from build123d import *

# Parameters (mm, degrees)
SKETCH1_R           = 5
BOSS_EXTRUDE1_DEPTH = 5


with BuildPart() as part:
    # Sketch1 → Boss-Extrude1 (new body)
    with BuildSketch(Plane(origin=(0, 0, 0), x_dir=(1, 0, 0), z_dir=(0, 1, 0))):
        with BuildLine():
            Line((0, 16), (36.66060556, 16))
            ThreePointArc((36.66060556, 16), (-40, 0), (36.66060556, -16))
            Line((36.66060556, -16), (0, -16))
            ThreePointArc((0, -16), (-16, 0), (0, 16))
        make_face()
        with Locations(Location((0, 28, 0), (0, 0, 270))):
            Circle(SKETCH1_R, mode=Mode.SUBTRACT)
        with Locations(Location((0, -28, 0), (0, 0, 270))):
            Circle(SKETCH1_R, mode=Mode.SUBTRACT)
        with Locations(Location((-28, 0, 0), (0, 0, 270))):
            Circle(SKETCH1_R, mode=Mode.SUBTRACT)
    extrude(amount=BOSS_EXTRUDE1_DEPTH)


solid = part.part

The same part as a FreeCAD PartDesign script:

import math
import FreeCAD as App
import Part
import Sketcher
from FreeCAD import Vector

doc = App.newDocument("Part")
body = doc.addObject("PartDesign::Body", "Body")

# Sketch on XZ plane
sketch1 = body.newObject("Sketcher::SketchObject", "Sketch")
sketch1.AttachmentSupport = (doc.getObject("XZ_Plane"), [""])
sketch1.MapMode = "FlatFace"
sketch1.addGeometry([
    Part.LineSegment(Vector(0, -16, 0), Vector(37, -16, 0)),  # 0
    Part.ArcOfCircle(Part.Circle(Vector(0, 0, 0), Vector(0, 0, 1), 40), math.radians(24), math.radians(336)),  # 1
    Part.LineSegment(Vector(37, 16, 0), Vector(0, 16, 0)),  # 2
    Part.ArcOfCircle(Part.Circle(Vector(0, 0, 0), Vector(0, 0, 1), 16), math.radians(90), math.radians(270)),  # 3
    Part.Circle(Vector(0, 28, 0), Vector(0, 0, 1), 5),  # 4
    Part.Circle(Vector(-28, 0, 0), Vector(0, 0, 1), 5),  # 5
    Part.Circle(Vector(0, -28, 0), Vector(0, 0, 1), 5),  # 6
], False)
sketch1.addConstraint([
    Sketcher.Constraint("Coincident", 0, 2, 1, 2),
    Sketcher.Constraint("Coincident", 1, 1, 2, 1),
    Sketcher.Constraint("Tangent", 2, 2, 3, 1),
    Sketcher.Constraint("Tangent", 3, 2, 0, 1),
    Sketcher.Constraint("Horizontal", 0),
    Sketcher.Constraint("Horizontal", 2),
    Sketcher.Constraint("Coincident", 1, 3, -1, 1),
    Sketcher.Constraint("Coincident", 3, 3, -1, 1),
    Sketcher.Constraint("Equal", 4, 5),
    Sketcher.Constraint("Equal", 5, 6),
    Sketcher.Constraint("Symmetric", 4, 3, 6, 3, -1, 1),
    Sketcher.Constraint("PointOnObject", 4, 3, -2),
    Sketcher.Constraint("PointOnObject", 5, 3, -1),
    Sketcher.Constraint("Diameter", 4, 10.0),
    Sketcher.Constraint("Radius", 1, 40.0),
    Sketcher.Constraint("Radius", 3, 16.0),
    Sketcher.Constraint("DistanceY", -1, 1, 4, 3, 28.0),
    Sketcher.Constraint("DistanceX", 5, 3, -1, 1, 28.0),
])
pad1 = body.newObject("PartDesign::Pad", "Pad")
pad1.Profile = sketch1
pad1.Length = 5
pad1.Reversed = True

doc.recompute()
